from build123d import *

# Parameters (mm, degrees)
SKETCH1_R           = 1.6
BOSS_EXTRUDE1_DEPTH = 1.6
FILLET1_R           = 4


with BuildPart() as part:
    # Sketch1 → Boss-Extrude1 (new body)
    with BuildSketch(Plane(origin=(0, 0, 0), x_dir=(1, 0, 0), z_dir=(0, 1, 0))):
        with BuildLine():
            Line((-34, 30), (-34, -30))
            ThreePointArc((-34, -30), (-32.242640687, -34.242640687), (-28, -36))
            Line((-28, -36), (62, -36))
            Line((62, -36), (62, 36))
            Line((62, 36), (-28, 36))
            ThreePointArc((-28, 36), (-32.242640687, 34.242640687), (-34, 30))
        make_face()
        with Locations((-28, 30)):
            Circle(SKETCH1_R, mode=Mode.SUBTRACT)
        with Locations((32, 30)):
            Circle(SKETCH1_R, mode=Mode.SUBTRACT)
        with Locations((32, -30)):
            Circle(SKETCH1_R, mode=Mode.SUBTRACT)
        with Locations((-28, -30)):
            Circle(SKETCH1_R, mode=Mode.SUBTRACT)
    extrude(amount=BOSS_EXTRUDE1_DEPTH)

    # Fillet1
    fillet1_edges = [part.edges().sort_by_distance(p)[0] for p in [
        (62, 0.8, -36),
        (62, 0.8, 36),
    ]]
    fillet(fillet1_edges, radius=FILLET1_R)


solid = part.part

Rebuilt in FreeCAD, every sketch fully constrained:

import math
import FreeCAD as App
import Part
import Sketcher

V = App.Vector


def edges_at(feature, points):
    """Names of the edges that pass closest to the given points."""
    edges = feature.Shape.Edges
    near = lambda p: min(range(len(edges)), key=lambda i: edges[i].distToShape(Part.Vertex(*p))[0])
    return sorted({f"Edge{near(p) + 1}" for p in points})

doc = App.newDocument("Part")
body = doc.addObject("PartDesign::Body", "Body")

# Sketch on XZ plane
sketch1 = body.newObject("Sketcher::SketchObject", "Sketch")
sketch1.AttachmentSupport = (doc.getObject("XZ_Plane"), [""])
sketch1.MapMode = "FlatFace"
sketch1.addGeometry([
    Part.LineSegment(V(-34, -30, 0), V(-34, 30, 0)),  # 0
    Part.ArcOfCircle(Part.Circle(V(-28, 30, 0), V(0, 0, 1), 6), math.radians(90), math.radians(180)),  # 1
    Part.LineSegment(V(-28, 36, 0), V(62, 36, 0)),  # 2
    Part.LineSegment(V(62, 36, 0), V(62, -36, 0)),  # 3
    Part.LineSegment(V(62, -36, 0), V(-28, -36, 0)),  # 4
    Part.ArcOfCircle(Part.Circle(V(-28, -30, 0), V(0, 0, 1), 6), math.radians(180), math.radians(270)),  # 5
    Part.Circle(V(-28, 30, 0), V(0, 0, 1), 1.6),  # 6
    Part.Circle(V(32, 30, 0), V(0, 0, 1), 1.6),  # 7
    Part.Circle(V(-28, -30, 0), V(0, 0, 1), 1.6),  # 8
    Part.Circle(V(32, -30, 0), V(0, 0, 1), 1.6),  # 9
], False)
sketch1.addConstraint([
    Sketcher.Constraint("Tangent", 0, 2, 1, 2),
    Sketcher.Constraint("Tangent", 1, 1, 2, 1),
    Sketcher.Constraint("Coincident", 2, 2, 3, 1),
    Sketcher.Constraint("Coincident", 3, 2, 4, 1),
    Sketcher.Constraint("Tangent", 4, 2, 5, 2),
    Sketcher.Constraint("Tangent", 5, 1, 0, 1),
    Sketcher.Constraint("Vertical", 0),
    Sketcher.Constraint("Horizontal", 2),
    Sketcher.Constraint("Vertical", 3),
    Sketcher.Constraint("Horizontal", 4),
    Sketcher.Constraint("Coincident", 6, 3, 1, 3),
    Sketcher.Constraint("Coincident", 8, 3, 5, 3),
    Sketcher.Constraint("Equal", 1, 5),
    Sketcher.Constraint("Equal", 6, 7),
    Sketcher.Constraint("Equal", 7, 8),
    Sketcher.Constraint("Equal", 8, 9),
    Sketcher.Constraint("Symmetric", 7, 3, 9, 3, -1),
    Sketcher.Constraint("Horizontal", 6, 3, 7, 3),
    Sketcher.Constraint("Horizontal", 8, 3, 9, 3),
    Sketcher.Constraint("Radius", 1, 6.0),
    Sketcher.Constraint("Diameter", 6, 3.2),
    Sketcher.Constraint("DistanceX", 2, 1, 2, 2, 90.0),
    Sketcher.Constraint("DistanceY", 0, 1, 0, 2, 60.0),
    Sketcher.Constraint("DistanceX", 1, 3, -1, 1, 28.0),
    Sketcher.Constraint("DistanceX", -1, 1, 7, 3, 32.0),
])
pad1 = body.newObject("PartDesign::Pad", "Pad")
pad1.Profile = sketch1
pad1.Length = 1.6
pad1.Reversed = True
doc.recompute()

fillet = body.newObject("PartDesign::Fillet", "Fillet")
fillet.Base = (pad1, edges_at(pad1, [(62, 0.8, -36), (62, 0.8, 36)]))
fillet.Radius = 4

doc.recompute()
